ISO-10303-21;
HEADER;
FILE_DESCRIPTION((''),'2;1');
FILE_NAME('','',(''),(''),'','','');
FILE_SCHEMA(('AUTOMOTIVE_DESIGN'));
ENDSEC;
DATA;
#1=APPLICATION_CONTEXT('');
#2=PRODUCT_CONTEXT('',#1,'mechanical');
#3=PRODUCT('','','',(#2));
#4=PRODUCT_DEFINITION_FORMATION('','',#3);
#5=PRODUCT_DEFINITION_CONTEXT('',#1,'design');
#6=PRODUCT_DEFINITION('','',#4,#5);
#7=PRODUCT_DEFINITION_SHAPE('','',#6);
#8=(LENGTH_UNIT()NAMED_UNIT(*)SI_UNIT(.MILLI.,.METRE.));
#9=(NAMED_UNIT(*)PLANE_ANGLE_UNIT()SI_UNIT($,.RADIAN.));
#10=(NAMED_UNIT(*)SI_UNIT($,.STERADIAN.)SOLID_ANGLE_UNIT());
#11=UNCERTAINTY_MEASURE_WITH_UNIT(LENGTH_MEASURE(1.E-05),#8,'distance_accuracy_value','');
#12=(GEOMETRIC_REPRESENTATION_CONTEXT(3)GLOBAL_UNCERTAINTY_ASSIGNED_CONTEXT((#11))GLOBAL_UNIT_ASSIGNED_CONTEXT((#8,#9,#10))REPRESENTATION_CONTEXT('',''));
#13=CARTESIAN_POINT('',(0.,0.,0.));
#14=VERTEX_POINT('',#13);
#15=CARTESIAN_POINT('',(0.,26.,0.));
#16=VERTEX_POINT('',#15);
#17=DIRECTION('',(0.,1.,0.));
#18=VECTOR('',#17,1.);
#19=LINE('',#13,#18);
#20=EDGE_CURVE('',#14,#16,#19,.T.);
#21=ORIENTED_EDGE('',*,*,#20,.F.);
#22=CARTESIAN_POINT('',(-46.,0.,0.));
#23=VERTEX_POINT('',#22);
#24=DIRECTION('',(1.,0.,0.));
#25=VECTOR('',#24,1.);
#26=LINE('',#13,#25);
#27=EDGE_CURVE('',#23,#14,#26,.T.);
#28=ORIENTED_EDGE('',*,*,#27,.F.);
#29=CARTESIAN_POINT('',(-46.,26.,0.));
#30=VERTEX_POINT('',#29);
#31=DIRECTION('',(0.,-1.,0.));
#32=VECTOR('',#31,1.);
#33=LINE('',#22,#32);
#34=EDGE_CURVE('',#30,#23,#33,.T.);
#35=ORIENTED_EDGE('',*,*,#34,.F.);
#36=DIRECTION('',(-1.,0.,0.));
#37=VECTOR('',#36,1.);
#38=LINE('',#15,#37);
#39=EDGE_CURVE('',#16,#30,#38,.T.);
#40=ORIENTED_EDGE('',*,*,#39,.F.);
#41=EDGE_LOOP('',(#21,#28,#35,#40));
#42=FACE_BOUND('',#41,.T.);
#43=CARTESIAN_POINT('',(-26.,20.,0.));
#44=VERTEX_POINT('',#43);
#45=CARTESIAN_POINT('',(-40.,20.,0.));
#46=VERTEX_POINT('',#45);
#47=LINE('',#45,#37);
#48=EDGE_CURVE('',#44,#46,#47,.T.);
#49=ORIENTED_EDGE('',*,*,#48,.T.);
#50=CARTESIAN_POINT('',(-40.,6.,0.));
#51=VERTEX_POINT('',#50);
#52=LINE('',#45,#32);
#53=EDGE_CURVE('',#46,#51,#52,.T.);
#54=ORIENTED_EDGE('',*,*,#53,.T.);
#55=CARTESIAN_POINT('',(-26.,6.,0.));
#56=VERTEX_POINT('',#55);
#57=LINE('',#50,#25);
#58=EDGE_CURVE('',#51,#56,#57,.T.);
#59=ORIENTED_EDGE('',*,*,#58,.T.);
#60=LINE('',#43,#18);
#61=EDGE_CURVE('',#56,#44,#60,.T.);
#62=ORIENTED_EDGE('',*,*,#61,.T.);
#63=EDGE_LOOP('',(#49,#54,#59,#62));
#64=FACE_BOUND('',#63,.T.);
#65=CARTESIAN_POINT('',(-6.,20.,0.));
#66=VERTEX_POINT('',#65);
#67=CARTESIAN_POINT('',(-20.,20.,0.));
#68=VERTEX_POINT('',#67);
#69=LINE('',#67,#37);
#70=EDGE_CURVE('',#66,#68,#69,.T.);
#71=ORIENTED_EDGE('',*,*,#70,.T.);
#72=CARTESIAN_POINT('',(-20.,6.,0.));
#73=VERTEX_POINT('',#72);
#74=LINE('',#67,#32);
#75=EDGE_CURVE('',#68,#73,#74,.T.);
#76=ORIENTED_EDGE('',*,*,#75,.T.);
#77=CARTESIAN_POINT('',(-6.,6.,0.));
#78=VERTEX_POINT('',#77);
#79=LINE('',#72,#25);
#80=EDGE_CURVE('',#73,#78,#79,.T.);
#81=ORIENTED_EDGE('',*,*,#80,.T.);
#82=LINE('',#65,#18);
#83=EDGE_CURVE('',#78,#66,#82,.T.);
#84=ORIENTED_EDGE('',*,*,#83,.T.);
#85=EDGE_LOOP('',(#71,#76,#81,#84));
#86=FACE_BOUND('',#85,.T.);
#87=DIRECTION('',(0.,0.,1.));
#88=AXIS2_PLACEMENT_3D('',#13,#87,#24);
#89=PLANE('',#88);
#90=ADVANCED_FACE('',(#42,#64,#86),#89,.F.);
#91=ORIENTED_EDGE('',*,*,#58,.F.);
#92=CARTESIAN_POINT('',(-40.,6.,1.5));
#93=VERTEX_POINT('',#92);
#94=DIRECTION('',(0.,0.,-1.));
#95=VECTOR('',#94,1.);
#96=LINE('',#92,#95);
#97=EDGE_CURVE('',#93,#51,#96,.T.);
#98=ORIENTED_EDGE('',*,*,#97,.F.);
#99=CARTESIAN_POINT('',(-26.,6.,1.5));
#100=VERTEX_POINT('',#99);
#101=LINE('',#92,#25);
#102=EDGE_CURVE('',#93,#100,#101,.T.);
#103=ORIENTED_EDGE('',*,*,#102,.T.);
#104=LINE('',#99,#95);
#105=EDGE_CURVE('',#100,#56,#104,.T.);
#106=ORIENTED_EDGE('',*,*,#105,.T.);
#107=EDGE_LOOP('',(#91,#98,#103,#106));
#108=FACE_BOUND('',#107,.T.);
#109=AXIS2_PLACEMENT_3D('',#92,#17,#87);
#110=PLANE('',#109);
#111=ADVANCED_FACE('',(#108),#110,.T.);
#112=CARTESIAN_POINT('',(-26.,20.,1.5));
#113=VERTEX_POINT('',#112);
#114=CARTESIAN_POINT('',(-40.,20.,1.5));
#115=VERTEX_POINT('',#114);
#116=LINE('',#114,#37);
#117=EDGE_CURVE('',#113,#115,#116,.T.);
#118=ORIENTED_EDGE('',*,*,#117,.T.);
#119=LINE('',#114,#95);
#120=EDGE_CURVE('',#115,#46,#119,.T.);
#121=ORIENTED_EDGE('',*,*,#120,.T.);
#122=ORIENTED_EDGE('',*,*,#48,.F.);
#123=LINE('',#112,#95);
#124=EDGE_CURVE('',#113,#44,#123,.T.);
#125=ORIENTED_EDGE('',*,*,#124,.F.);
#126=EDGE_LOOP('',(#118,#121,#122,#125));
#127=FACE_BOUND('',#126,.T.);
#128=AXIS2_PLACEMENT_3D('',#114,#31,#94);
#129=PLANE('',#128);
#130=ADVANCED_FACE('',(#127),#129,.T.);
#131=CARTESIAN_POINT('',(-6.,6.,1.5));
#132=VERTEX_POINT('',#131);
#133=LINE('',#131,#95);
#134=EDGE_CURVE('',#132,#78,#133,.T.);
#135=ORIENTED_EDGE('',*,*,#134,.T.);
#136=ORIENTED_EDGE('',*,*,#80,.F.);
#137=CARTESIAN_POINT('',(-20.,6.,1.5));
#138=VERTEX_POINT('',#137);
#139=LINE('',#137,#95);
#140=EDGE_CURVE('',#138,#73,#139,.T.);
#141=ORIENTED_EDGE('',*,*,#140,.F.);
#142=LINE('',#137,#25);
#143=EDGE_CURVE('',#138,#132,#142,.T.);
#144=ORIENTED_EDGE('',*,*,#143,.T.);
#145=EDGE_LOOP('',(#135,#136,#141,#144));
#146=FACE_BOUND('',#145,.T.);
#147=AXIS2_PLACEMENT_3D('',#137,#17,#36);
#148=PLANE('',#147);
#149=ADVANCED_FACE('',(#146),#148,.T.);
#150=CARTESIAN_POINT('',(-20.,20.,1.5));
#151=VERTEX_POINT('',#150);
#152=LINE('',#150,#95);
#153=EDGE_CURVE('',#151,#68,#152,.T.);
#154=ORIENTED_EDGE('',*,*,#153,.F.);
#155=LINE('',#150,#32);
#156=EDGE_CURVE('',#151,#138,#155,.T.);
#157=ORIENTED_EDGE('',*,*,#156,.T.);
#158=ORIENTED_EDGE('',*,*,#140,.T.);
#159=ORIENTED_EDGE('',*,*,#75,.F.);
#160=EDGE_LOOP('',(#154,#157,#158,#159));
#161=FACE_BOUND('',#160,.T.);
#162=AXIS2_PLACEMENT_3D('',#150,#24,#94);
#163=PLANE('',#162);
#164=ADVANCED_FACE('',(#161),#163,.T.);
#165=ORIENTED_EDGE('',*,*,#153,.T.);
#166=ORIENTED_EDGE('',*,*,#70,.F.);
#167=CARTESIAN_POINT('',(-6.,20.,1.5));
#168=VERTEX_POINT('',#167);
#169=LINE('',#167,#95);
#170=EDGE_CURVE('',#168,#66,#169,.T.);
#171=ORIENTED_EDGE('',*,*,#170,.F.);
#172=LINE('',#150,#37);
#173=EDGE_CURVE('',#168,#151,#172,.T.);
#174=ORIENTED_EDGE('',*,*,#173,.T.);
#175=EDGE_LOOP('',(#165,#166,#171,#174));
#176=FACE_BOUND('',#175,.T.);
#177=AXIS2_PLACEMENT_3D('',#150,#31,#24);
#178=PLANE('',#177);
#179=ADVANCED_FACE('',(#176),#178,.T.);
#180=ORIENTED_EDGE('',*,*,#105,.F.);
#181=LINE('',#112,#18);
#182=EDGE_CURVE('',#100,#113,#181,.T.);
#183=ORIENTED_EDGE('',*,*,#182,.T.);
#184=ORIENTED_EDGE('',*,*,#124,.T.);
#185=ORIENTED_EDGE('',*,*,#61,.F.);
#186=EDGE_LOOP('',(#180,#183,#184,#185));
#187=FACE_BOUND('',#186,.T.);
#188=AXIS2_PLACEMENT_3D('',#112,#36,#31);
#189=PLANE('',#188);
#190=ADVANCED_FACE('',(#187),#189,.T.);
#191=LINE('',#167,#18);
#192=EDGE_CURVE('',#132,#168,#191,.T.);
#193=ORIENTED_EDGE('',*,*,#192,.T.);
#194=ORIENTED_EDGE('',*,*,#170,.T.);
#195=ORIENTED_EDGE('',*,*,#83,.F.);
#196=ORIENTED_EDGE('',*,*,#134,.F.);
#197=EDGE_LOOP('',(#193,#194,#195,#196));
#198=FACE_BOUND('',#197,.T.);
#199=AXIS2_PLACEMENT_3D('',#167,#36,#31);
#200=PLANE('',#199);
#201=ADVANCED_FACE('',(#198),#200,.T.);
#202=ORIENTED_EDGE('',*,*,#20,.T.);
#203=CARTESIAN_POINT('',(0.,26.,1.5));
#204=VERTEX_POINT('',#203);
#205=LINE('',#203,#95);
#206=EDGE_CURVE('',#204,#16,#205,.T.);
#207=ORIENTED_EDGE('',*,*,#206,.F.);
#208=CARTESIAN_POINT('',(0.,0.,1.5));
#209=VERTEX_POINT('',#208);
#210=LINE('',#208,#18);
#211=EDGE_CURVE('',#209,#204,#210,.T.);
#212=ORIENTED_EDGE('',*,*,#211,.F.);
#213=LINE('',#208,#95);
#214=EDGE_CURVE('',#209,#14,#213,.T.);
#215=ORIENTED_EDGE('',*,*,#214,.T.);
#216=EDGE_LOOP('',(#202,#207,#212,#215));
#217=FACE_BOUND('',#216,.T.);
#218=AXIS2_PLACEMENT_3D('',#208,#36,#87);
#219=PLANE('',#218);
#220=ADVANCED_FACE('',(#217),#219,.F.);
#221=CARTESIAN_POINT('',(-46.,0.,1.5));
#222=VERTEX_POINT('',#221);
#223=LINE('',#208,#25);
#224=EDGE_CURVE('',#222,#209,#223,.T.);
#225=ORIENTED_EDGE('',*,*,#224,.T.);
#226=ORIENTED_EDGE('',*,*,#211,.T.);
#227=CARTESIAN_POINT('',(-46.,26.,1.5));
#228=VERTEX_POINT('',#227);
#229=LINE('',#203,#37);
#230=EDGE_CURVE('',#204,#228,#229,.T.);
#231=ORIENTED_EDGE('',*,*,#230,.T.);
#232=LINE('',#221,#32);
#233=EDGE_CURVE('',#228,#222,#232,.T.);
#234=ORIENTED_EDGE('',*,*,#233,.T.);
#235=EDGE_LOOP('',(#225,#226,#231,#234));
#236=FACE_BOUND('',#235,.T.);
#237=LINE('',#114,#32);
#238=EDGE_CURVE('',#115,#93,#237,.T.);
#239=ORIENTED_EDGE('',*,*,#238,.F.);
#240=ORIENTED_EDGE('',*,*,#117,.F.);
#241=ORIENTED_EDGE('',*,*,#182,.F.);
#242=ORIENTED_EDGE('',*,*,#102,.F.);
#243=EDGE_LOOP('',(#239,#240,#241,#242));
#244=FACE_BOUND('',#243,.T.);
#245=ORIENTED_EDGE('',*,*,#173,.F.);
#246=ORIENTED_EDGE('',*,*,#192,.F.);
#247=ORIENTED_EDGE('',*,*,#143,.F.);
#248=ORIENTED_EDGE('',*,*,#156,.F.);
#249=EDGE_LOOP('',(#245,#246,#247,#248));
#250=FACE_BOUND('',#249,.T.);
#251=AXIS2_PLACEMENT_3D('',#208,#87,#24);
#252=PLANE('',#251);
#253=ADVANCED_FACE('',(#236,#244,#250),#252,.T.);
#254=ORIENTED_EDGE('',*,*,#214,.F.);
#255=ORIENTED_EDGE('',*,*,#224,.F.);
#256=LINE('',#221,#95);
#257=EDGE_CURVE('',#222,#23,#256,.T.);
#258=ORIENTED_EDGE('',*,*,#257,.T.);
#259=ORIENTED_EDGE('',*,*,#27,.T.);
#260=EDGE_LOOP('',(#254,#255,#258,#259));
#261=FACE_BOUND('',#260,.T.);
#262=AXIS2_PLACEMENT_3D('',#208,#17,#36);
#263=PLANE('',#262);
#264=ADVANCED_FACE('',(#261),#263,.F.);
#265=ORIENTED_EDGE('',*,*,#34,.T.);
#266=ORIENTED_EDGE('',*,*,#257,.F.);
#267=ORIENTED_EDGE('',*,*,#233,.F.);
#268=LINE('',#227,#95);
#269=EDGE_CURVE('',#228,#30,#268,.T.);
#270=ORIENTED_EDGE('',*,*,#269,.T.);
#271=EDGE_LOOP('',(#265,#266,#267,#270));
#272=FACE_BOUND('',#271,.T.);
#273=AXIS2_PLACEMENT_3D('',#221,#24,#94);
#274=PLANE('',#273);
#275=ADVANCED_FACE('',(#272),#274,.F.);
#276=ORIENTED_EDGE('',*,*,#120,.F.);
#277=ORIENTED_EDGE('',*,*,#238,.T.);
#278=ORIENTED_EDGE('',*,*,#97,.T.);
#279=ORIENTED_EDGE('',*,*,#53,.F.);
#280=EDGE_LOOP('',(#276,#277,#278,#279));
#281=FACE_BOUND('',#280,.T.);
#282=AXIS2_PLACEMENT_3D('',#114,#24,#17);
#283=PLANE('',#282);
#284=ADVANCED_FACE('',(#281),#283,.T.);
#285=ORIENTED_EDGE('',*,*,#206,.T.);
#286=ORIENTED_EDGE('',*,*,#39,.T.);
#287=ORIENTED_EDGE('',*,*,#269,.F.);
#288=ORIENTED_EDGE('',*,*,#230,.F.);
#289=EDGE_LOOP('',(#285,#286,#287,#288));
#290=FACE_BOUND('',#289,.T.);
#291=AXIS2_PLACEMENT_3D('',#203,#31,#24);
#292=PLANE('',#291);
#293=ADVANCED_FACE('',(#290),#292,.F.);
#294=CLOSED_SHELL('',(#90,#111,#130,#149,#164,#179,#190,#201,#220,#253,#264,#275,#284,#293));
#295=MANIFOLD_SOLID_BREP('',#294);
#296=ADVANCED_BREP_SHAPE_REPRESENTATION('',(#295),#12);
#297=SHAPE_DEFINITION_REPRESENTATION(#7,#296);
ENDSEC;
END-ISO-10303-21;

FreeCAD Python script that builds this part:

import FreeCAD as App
import Part
import Sketcher
from FreeCAD import Vector

doc = App.newDocument("Part")
params = doc.addObject("Spreadsheet::Sheet", "Params")
for row, (alias, value) in enumerate([
    ("sketch1_width", "46 mm"),
    ("sketch1_width2", "14 mm"),
    ("sketch1_height", "26 mm"),
    ("pad1_length", "1.5 mm"),
], start=1):
    params.set(f"A{row}", alias)
    params.set(f"B{row}", "=" + value)
    params.setAlias(f"B{row}", alias)

body = doc.addObject("PartDesign::Body", "Body")

sketch1 = doc.addObject("Sketcher::SketchObject", "Sketch")
body.addObject(sketch1)
sketch1.AttachmentSupport = (doc.XY_Plane, [""])
sketch1.MapMode = "FlatFace"
sketch1.addGeometry([
    Part.LineSegment(Vector(-46, 26, 0), Vector(-46, 0, 0)),
    Part.LineSegment(Vector(-46, 0, 0), Vector(0, 0, 0)),
    Part.LineSegment(Vector(0, 0, 0), Vector(0, 26, 0)),
    Part.LineSegment(Vector(0, 26, 0), Vector(-46, 26, 0)),
    Part.LineSegment(Vector(-26, 6, 0), Vector(-40, 6, 0)),
    Part.LineSegment(Vector(-40, 6, 0), Vector(-40, 20, 0)),
    Part.LineSegment(Vector(-40, 20, 0), Vector(-26, 20, 0)),
    Part.LineSegment(Vector(-26, 20, 0), Vector(-26, 6, 0)),
    Part.LineSegment(Vector(-6, 6, 0), Vector(-20, 6, 0)),
    Part.LineSegment(Vector(-20, 6, 0), Vector(-20, 20, 0)),
    Part.LineSegment(Vector(-20, 20, 0), Vector(-6, 20, 0)),
    Part.LineSegment(Vector(-6, 20, 0), Vector(-6, 6, 0)),
], False)
sketch1.addConstraint([
    Sketcher.Constraint("Coincident", 0, 2, 1, 1),
    Sketcher.Constraint("Coincident", 1, 2, 2, 1),
    Sketcher.Constraint("Coincident", 2, 2, 3, 1),
    Sketcher.Constraint("Coincident", 3, 2, 0, 1),
    Sketcher.Constraint("Coincident", 4, 2, 5, 1),
    Sketcher.Constraint("Coincident", 5, 2, 6, 1),
    Sketcher.Constraint("Coincident", 6, 2, 7, 1),
    Sketcher.Constraint("Coincident", 7, 2, 4, 1),
    Sketcher.Constraint("Coincident", 8, 2, 9, 1),
    Sketcher.Constraint("Coincident", 9, 2, 10, 1),
    Sketcher.Constraint("Coincident", 10, 2, 11, 1),
    Sketcher.Constraint("Coincident", 11, 2, 8, 1),
    Sketcher.Constraint("Vertical", 0),
    Sketcher.Constraint("Horizontal", 1),
    Sketcher.Constraint("Vertical", 2),
    Sketcher.Constraint("Horizontal", 3),
    Sketcher.Constraint("Horizontal", 4),
    Sketcher.Constraint("Vertical", 5),
    Sketcher.Constraint("Horizontal", 6),
    Sketcher.Constraint("Vertical", 7),
    Sketcher.Constraint("Horizontal", 8),
    Sketcher.Constraint("Vertical", 9),
    Sketcher.Constraint("Horizontal", 10),
    Sketcher.Constraint("Vertical", 11),
    Sketcher.Constraint("Coincident", 1, 2, -1, 1),
    Sketcher.Constraint("Horizontal", 7, 2, 8, 2),
    Sketcher.Constraint("Horizontal", 6, 2, 9, 2),
    Sketcher.Constraint("Equal", 6, 8),
    Sketcher.Constraint("Equal", 10, 5),
    Sketcher.Constraint("DistanceX", 1, 1, 1, 2, 46.0),
    Sketcher.Constraint("DistanceX", 4, 2, 4, 1, 14.0),
    Sketcher.Constraint("DistanceY", 0, 2, 0, 1, 26.0),
    Sketcher.Constraint("DistanceX", 4, 2, -1, 1, 40.0),
    Sketcher.Constraint("DistanceY", -1, 1, 4, 2, 6.0),
    Sketcher.Constraint("DistanceX", 8, 2, -1, 1, 20.0),
])
sketch1.setExpression("Constraints[29]", "Params.sketch1_width")
sketch1.setExpression("Constraints[30]", "Params.sketch1_width2")
sketch1.setExpression("Constraints[31]", "Params.sketch1_height")
pad1 = doc.addObject("PartDesign::Pad", "Pad")
body.addObject(pad1)
pad1.Profile = sketch1
pad1.setExpression("Length", "Params.pad1_length")

doc.recompute()
